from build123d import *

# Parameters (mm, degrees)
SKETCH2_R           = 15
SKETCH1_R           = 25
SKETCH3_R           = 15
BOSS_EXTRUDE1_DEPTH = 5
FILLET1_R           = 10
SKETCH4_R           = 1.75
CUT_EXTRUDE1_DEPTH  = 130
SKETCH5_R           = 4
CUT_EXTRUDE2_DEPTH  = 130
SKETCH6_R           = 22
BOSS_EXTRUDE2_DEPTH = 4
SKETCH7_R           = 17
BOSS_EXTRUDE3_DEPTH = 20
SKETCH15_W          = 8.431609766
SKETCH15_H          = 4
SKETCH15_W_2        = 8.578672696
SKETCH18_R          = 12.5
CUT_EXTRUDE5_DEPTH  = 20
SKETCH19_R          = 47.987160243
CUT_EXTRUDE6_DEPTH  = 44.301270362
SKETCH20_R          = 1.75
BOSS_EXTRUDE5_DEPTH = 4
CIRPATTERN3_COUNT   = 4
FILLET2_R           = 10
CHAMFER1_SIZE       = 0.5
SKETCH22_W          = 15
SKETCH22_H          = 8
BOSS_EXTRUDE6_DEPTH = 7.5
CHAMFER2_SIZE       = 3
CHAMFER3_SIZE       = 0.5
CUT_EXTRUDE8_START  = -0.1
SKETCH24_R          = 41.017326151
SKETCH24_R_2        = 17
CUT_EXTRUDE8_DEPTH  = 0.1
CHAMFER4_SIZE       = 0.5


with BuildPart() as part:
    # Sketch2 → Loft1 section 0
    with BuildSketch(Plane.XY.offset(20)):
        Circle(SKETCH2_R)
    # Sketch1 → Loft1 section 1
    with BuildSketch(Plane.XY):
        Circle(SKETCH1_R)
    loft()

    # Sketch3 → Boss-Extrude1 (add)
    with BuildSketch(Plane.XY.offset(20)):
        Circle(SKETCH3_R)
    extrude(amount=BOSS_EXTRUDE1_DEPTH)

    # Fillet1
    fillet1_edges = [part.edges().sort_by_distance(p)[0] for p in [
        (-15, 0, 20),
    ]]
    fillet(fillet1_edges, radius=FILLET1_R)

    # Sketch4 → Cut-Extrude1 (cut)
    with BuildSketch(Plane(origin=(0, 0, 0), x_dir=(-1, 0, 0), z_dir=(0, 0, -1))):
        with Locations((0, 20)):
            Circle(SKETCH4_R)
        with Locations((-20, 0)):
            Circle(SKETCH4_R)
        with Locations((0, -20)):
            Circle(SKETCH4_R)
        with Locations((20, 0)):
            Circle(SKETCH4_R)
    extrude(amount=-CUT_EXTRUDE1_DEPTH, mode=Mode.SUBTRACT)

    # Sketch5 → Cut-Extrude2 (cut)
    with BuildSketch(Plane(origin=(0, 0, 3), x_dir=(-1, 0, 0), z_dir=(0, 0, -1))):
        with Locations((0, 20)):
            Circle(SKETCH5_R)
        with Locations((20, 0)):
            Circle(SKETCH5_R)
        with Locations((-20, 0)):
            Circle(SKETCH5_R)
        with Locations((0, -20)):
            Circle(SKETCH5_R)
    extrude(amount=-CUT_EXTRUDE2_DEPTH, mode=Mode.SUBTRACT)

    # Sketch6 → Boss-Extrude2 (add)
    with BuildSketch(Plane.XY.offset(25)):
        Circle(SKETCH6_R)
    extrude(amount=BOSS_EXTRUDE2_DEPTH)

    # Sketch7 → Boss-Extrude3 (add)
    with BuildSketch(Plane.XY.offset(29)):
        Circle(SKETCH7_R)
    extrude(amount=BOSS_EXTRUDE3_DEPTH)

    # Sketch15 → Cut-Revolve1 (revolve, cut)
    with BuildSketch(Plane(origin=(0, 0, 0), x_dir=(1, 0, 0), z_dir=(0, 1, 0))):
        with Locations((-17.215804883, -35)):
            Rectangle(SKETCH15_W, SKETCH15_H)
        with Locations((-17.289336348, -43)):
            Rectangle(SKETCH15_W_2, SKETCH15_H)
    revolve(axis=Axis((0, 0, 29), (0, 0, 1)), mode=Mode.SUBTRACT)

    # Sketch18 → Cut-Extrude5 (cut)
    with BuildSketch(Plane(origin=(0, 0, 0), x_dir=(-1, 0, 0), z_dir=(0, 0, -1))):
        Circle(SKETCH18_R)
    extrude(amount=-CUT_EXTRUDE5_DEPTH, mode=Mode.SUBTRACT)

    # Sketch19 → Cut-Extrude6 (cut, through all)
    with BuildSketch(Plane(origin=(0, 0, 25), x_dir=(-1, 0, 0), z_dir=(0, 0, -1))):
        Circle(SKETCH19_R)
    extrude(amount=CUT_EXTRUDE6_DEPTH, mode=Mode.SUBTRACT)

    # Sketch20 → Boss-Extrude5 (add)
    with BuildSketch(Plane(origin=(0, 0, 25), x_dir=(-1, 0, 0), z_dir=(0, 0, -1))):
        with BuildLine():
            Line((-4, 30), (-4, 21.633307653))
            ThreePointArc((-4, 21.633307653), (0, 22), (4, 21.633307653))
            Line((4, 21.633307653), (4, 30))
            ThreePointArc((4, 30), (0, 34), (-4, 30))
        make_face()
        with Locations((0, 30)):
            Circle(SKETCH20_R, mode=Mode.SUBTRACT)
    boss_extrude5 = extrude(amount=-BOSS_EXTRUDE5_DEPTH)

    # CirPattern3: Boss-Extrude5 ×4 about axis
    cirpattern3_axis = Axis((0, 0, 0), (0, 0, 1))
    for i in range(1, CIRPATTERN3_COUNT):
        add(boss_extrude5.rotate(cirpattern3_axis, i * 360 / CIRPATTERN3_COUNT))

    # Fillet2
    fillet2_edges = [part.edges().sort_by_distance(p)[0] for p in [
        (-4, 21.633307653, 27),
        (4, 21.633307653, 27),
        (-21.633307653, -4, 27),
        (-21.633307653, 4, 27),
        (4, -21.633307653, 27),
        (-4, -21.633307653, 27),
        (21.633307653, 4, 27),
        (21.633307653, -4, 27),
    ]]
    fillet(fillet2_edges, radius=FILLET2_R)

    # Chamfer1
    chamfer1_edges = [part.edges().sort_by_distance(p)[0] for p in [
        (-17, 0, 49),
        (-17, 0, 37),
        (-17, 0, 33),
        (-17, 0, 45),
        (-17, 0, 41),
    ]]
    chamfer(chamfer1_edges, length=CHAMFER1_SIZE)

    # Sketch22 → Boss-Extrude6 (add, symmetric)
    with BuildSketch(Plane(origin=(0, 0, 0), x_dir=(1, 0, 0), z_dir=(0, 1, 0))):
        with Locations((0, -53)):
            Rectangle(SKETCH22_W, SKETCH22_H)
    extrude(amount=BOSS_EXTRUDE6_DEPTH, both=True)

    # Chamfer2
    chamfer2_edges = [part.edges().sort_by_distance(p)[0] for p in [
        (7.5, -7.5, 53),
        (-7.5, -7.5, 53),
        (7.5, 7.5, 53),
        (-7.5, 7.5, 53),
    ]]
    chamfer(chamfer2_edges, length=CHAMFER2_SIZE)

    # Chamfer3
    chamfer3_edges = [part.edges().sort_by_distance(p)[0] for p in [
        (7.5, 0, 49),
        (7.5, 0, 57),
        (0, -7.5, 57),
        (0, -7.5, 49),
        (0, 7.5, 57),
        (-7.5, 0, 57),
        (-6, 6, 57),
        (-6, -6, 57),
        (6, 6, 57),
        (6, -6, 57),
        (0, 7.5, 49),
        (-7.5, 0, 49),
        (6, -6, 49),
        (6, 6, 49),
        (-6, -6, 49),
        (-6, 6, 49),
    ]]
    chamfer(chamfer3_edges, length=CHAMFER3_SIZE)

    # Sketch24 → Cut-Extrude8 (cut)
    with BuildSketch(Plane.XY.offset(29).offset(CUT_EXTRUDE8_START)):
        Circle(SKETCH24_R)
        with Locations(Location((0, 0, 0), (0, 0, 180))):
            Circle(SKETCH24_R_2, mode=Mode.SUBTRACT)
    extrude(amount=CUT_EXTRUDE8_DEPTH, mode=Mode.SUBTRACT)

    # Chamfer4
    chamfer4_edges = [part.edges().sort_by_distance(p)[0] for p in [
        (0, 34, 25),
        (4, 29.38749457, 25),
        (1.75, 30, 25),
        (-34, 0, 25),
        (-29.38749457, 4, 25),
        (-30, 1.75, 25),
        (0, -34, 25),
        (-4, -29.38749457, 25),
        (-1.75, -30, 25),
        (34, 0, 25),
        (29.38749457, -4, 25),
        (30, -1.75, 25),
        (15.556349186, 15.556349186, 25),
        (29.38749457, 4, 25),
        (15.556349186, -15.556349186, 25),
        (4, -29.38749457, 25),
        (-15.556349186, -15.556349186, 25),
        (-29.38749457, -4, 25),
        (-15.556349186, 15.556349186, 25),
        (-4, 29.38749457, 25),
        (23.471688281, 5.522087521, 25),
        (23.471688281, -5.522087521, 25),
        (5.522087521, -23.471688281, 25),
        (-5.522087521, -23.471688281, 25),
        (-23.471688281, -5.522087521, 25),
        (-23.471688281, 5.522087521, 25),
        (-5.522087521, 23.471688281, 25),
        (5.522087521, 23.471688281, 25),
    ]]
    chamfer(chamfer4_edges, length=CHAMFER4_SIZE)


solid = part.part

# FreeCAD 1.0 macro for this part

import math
import FreeCAD as App
import Part
import Sketcher
from FreeCAD import Vector


def edges_at(feature, points):
    """Names of the edges that pass closest to the given points."""
    edges = feature.Shape.Edges
    near = lambda p: min(range(len(edges)), key=lambda i: edges[i].distToShape(Part.Vertex(*p))[0])
    return sorted({f"Edge{near(p) + 1}" for p in points})

doc = App.newDocument("Part")
body = doc.addObject("PartDesign::Body", "Body")

# Sketch on XY plane
sketch1 = body.newObject("Sketcher::SketchObject", "Sketch")
sketch1.AttachmentSupport = (doc.getObject("XY_Plane"), [""])
sketch1.MapMode = "FlatFace"
sketch1.AttachmentOffset = App.Placement(Vector(0, 0, 20), App.Rotation())
sketch1.addGeometry(Part.Circle(Vector(0, 0, 0), Vector(0, 0, 1), 15), False)
sketch1.addConstraint(Sketcher.Constraint("Coincident", 0, 3, -1, 1))
sketch1.addConstraint(Sketcher.Constraint("Diameter", 0, 30.0))

# Sketch on XY plane
sketch2 = body.newObject("Sketcher::SketchObject", "Sketch001")
sketch2.AttachmentSupport = (doc.getObject("XY_Plane"), [""])
sketch2.MapMode = "FlatFace"
sketch2.addGeometry(Part.Circle(Vector(0, 0, 0), Vector(0, 0, 1), 25), False)
sketch2.addConstraint(Sketcher.Constraint("Coincident", 0, 3, -1, 1))
sketch2.addConstraint(Sketcher.Constraint("Diameter", 0, 50.0))

additiveloft = body.newObject("PartDesign::AdditiveLoft", "AdditiveLoft")
additiveloft.Profile = sketch1
additiveloft.Sections = [sketch2]

# Sketch on XY plane
sketch3 = body.newObject("Sketcher::SketchObject", "Sketch002")
sketch3.AttachmentSupport = (doc.getObject("XY_Plane"), [""])
sketch3.MapMode = "FlatFace"
sketch3.AttachmentOffset = App.Placement(Vector(0, 0, 20), App.Rotation())
sketch3.addGeometry(Part.Circle(Vector(0, 0, 0), Vector(0, 0, 1), 15), False)
sketch3.addConstraint(Sketcher.Constraint("Coincident", 0, 3, -1, 1))
sketch3.addConstraint(Sketcher.Constraint("Diameter", 0, 30.0))
pad1 = body.newObject("PartDesign::Pad", "Pad")
pad1.Profile = sketch3
pad1.Length = 5
doc.recompute()

fillet = body.newObject("PartDesign::Fillet", "Fillet")
fillet.Base = (pad1, edges_at(pad1, [(-15, 0, 20)]))
fillet.Radius = 10

# Sketch on XY plane
sketch4 = body.newObject("Sketcher::SketchObject", "Sketch003")
sketch4.AttachmentSupport = (doc.getObject("XY_Plane"), [""])
sketch4.MapMode = "FlatFace"
sketch4.addGeometry(Part.Circle(Vector(0, 20, 0), Vector(0, 0, 1), 1.8), False)
sketch4.addGeometry(Part.Circle(Vector(20, 0, 0), Vector(0, 0, 1), 1.8), False)
sketch4.addGeometry(Part.Circle(Vector(0, -20, 0), Vector(0, 0, 1), 1.8), False)
sketch4.addGeometry(Part.Circle(Vector(-20, 0, 0), Vector(0, 0, 1), 1.8), False)
sketch4.addConstraint(Sketcher.Constraint("Equal", 0, 1))
sketch4.addConstraint(Sketcher.Constraint("Equal", 1, 2))
sketch4.addConstraint(Sketcher.Constraint("Equal", 2, 3))
sketch4.addConstraint(Sketcher.Constraint("Symmetric", 0, 3, 2, 3, -1, 1))
sketch4.addConstraint(Sketcher.Constraint("Symmetric", 1, 3, 3, 3, -1, 1))
sketch4.addConstraint(Sketcher.Constraint("PointOnObject", 0, 3, -2))
sketch4.addConstraint(Sketcher.Constraint("PointOnObject", 1, 3, -1))
sketch4.addConstraint(Sketcher.Constraint("Diameter", 0, 3.5))
sketch4.addConstraint(Sketcher.Constraint("DistanceY", -1, 1, 0, 3, 20.0))
sketch4.addConstraint(Sketcher.Constraint("DistanceX", -1, 1, 1, 3, 20.0))
pocket1 = body.newObject("PartDesign::Pocket", "Pocket")
pocket1.Profile = sketch4
pocket1.Length = 130
pocket1.Reversed = True

# Sketch on XY plane
sketch5 = body.newObject("Sketcher::SketchObject", "Sketch004")
sketch5.AttachmentSupport = (doc.getObject("XY_Plane"), [""])
sketch5.MapMode = "FlatFace"
sketch5.AttachmentOffset = App.Placement(Vector(0, 0, 3), App.Rotation())
sketch5.addGeometry(Part.Circle(Vector(0, 20, 0), Vector(0, 0, 1), 4), False)
sketch5.addGeometry(Part.Circle(Vector(-20, 0, 0), Vector(0, 0, 1), 4), False)
sketch5.addGeometry(Part.Circle(Vector(20, 0, 0), Vector(0, 0, 1), 4), False)
sketch5.addGeometry(Part.Circle(Vector(0, -20, 0), Vector(0, 0, 1), 4), False)
sketch5.addConstraint(Sketcher.Constraint("Equal", 0, 1))
sketch5.addConstraint(Sketcher.Constraint("Equal", 1, 2))
sketch5.addConstraint(Sketcher.Constraint("Equal", 2, 3))
sketch5.addConstraint(Sketcher.Constraint("Symmetric", 1, 3, 2, 3, -1, 1))
sketch5.addConstraint(Sketcher.Constraint("Symmetric", 0, 3, 3, 3, -1, 1))
sketch5.addConstraint(Sketcher.Constraint("PointOnObject", 0, 3, -2))
sketch5.addConstraint(Sketcher.Constraint("PointOnObject", 1, 3, -1))
sketch5.addConstraint(Sketcher.Constraint("Diameter", 0, 8.0))
sketch5.addConstraint(Sketcher.Constraint("DistanceY", -1, 1, 0, 3, 20.0))
sketch5.addConstraint(Sketcher.Constraint("DistanceX", 1, 3, -1, 1, 20.0))
pocket2 = body.newObject("PartDesign::Pocket", "Pocket001")
pocket2.Profile = sketch5
pocket2.Length = 130
pocket2.Reversed = True

# Sketch on XY plane
sketch6 = body.newObject("Sketcher::SketchObject", "Sketch005")
sketch6.AttachmentSupport = (doc.getObject("XY_Plane"), [""])
sketch6.MapMode = "FlatFace"
sketch6.AttachmentOffset = App.Placement(Vector(0, 0, 25), App.Rotation())
sketch6.addGeometry(Part.Circle(Vector(0, 0, 0), Vector(0, 0, 1), 22), False)
sketch6.addConstraint(Sketcher.Constraint("Coincident", 0, 3, -1, 1))
sketch6.addConstraint(Sketcher.Constraint("Diameter", 0, 44.0))
pad2 = body.newObject("PartDesign::Pad", "Pad001")
pad2.Profile = sketch6
pad2.Length = 4

# Sketch on XY plane
sketch7 = body.newObject("Sketcher::SketchObject", "Sketch006")
sketch7.AttachmentSupport = (doc.getObject("XY_Plane"), [""])
sketch7.MapMode = "FlatFace"
sketch7.AttachmentOffset = App.Placement(Vector(0, 0, 29), App.Rotation())
sketch7.addGeometry(Part.Circle(Vector(0, 0, 0), Vector(0, 0, 1), 17), False)
sketch7.addConstraint(Sketcher.Constraint("Coincident", 0, 3, -1, 1))
sketch7.addConstraint(Sketcher.Constraint("Diameter", 0, 34.0))
pad3 = body.newObject("PartDesign::Pad", "Pad002")
pad3.Profile = sketch7
pad3.Length = 20

# Sketch on XZ plane
sketch8 = body.newObject("Sketcher::SketchObject", "Sketch007")
sketch8.AttachmentSupport = (doc.getObject("XZ_Plane"), [""])
sketch8.MapMode = "FlatFace"
sketch8.addGeometry(Part.LineSegment(Vector(-21.4, 33, 0), Vector(-21.4, 37, 0)), False)
sketch8.addGeometry(Part.LineSegment(Vector(-21.4, 37, 0), Vector(-13, 37, 0)), False)
sketch8.addGeometry(Part.LineSegment(Vector(-13, 37, 0), Vector(-13, 33, 0)), False)
sketch8.addGeometry(Part.LineSegment(Vector(-13, 33, 0), Vector(-21.4, 33, 0)), False)
sketch8.addGeometry(Part.LineSegment(Vector(-21.6, 41, 0), Vector(-21.6, 45, 0)), False)
sketch8.addGeometry(Part.LineSegment(Vector(-21.6, 45, 0), Vector(-13, 45, 0)), False)
sketch8.addGeometry(Part.LineSegment(Vector(-13, 45, 0), Vector(-13, 41, 0)), False)
sketch8.addGeometry(Part.LineSegment(Vector(-13, 41, 0), Vector(-21.6, 41, 0)), False)
sketch8.addConstraint(Sketcher.Constraint("Coincident", 0, 2, 1, 1))
sketch8.addConstraint(Sketcher.Constraint("Coincident", 1, 2, 2, 1))
sketch8.addConstraint(Sketcher.Constraint("Coincident", 2, 2, 3, 1))
sketch8.addConstraint(Sketcher.Constraint("Coincident", 3, 2, 0, 1))
sketch8.addConstraint(Sketcher.Constraint("Coincident", 4, 2, 5, 1))
sketch8.addConstraint(Sketcher.Constraint("Coincident", 5, 2, 6, 1))
sketch8.addConstraint(Sketcher.Constraint("Coincident", 6, 2, 7, 1))
sketch8.addConstraint(Sketcher.Constraint("Coincident", 7, 2, 4, 1))
sketch8.addConstraint(Sketcher.Constraint("Vertical", 0))
sketch8.addConstraint(Sketcher.Constraint("Horizontal", 1))
sketch8.addConstraint(Sketcher.Constraint("Vertical", 2))
sketch8.addConstraint(Sketcher.Constraint("Horizontal", 3))
sketch8.addConstraint(Sketcher.Constraint("Vertical", 4))
sketch8.addConstraint(Sketcher.Constraint("Horizontal", 5))
sketch8.addConstraint(Sketcher.Constraint("Vertical", 6))
sketch8.addConstraint(Sketcher.Constraint("Horizontal", 7))
sketch8.addConstraint(Sketcher.Constraint("Vertical", 2, 2, 5, 2))
sketch8.addConstraint(Sketcher.Constraint("Equal", 2, 4))
sketch8.addConstraint(Sketcher.Constraint("DistanceY", 0, 1, 0, 2, 4.0))
sketch8.addConstraint(Sketcher.Constraint("DistanceY", -1, 1, 0, 2, 37.0))
sketch8.addConstraint(Sketcher.Constraint("DistanceX", 1, 2, -1, 1, 13.0))
sketch8.addConstraint(Sketcher.Constraint("DistanceY", -1, 1, 4, 2, 45.0))
sketch8.addConstraint(Sketcher.Constraint("DistanceX", 1, 1, 1, 2, 8.43161))
sketch8.addConstraint(Sketcher.Constraint("DistanceX", 5, 1, 5, 2, 8.578673))
groove = body.newObject("PartDesign::Groove", "Groove")
groove.Profile = sketch8
groove.ReferenceAxis = (sketch8, ["V_Axis"])
groove.Angle = 360

# Sketch on XY plane
sketch9 = body.newObject("Sketcher::SketchObject", "Sketch008")
sketch9.AttachmentSupport = (doc.getObject("XY_Plane"), [""])
sketch9.MapMode = "FlatFace"
sketch9.addGeometry(Part.Circle(Vector(0, 0, 0), Vector(0, 0, 1), 12), False)
sketch9.addConstraint(Sketcher.Constraint("Coincident", 0, 3, -1, 1))
sketch9.addConstraint(Sketcher.Constraint("Diameter", 0, 25.0))
pocket3 = body.newObject("PartDesign::Pocket", "Pocket002")
pocket3.Profile = sketch9
pocket3.Length = 20
pocket3.Reversed = True

# Sketch on XY plane
sketch10 = body.newObject("Sketcher::SketchObject", "Sketch009")
sketch10.AttachmentSupport = (doc.getObject("XY_Plane"), [""])
sketch10.MapMode = "FlatFace"
sketch10.AttachmentOffset = App.Placement(Vector(0, 0, 25), App.Rotation())
sketch10.addGeometry(Part.Circle(Vector(0, 0, 0), Vector(0, 0, 1), 48), False)
sketch10.addConstraint(Sketcher.Constraint("Coincident", 0, 3, -1, 1))
sketch10.addConstraint(Sketcher.Constraint("Diameter", 0, 95.97432))
pocket4 = body.newObject("PartDesign::Pocket", "Pocket003")
pocket4.Profile = sketch10
pocket4.Type = "ThroughAll"

# Sketch on XY plane
sketch11 = body.newObject("Sketcher::SketchObject", "Sketch010")
sketch11.AttachmentSupport = (doc.getObject("XY_Plane"), [""])
sketch11.MapMode = "FlatFace"
sketch11.AttachmentOffset = App.Placement(Vector(0, 0, 25), App.Rotation())
sketch11.addGeometry(Part.LineSegment(Vector(4, 30, 0), Vector(4, 21.6, 0)), False)
sketch11.addGeometry(Part.ArcOfCircle(Part.Circle(Vector(0, 0, 0), Vector(0, 0, 1), 22), math.radians(80), math.radians(100)), False)
sketch11.addGeometry(Part.LineSegment(Vector(-4, 21.6, 0), Vector(-4, 30, 0)), False)
sketch11.addGeometry(Part.ArcOfCircle(Part.Circle(Vector(0, 30, 0), Vector(0, 0, 1), 4), math.radians(0), math.radians(180)), False)
sketch11.addGeometry(Part.Circle(Vector(0, 30, 0), Vector(0, 0, 1), 1.8), False)
sketch11.addConstraint(Sketcher.Constraint("Coincident", 0, 2, 1, 1))
sketch11.addConstraint(Sketcher.Constraint("Coincident", 1, 2, 2, 1))
sketch11.addConstraint(Sketcher.Constraint("Tangent", 2, 2, 3, 2))
sketch11.addConstraint(Sketcher.Constraint("Tangent", 3, 1, 0, 1))
sketch11.addConstraint(Sketcher.Constraint("Vertical", 0))
sketch11.addConstraint(Sketcher.Constraint("Vertical", 2))
sketch11.addConstraint(Sketcher.Constraint("Coincident", 1, 3, -1, 1))
sketch11.addConstraint(Sketcher.Constraint("Coincident", 4, 3, 3, 3))
sketch11.addConstraint(Sketcher.Constraint("PointOnObject", 3, 3, -2))
sketch11.addConstraint(Sketcher.Constraint("Radius", 1, 22.0))
sketch11.addConstraint(Sketcher.Constraint("Radius", 3, 4.0))
sketch11.addConstraint(Sketcher.Constraint("Diameter", 4, 3.5))
sketch11.addConstraint(Sketcher.Constraint("DistanceY", -1, 1, 3, 3, 30.0))
pad4 = body.newObject("PartDesign::Pad", "Pad003")
pad4.Profile = sketch11
pad4.Length = 4
doc.recompute()

polarpattern = body.newObject("PartDesign::PolarPattern", "PolarPattern")
polarpattern.Originals = [pad4]
polarpattern.Axis = (doc.getObject("Z_Axis"), [""])
polarpattern.Angle = 360
polarpattern.Occurrences = 4
body.Tip = polarpattern
doc.recompute()

fillet2 = body.newObject("PartDesign::Fillet", "Fillet001")
fillet2.Base = (polarpattern, edges_at(polarpattern, [
    (-4, 21.633, 27),
    (4, 21.633, 27),
    (-21.633, -4, 27),
    (-21.633, 4, 27),
    (4, -21.633, 27),
    (-4, -21.633, 27),
    (21.633, 4, 27),
    (21.633, -4, 27),
]))
fillet2.Radius = 10
doc.recompute()

chamfer = body.newObject("PartDesign::Chamfer", "Chamfer")
chamfer.Base = (fillet2, edges_at(fillet2, [
    (-17, 0, 49),
    (-17, 0, 37),
    (-17, 0, 33),
    (-17, 0, 45),
    (-17, 0, 41),
]))
chamfer.Size = 0.5

# Sketch on XZ plane
sketch12 = body.newObject("Sketcher::SketchObject", "Sketch011")
sketch12.AttachmentSupport = (doc.getObject("XZ_Plane"), [""])
sketch12.MapMode = "FlatFace"
sketch12.addGeometry(Part.LineSegment(Vector(-8, 49, 0), Vector(-8, 57, 0)), False)
sketch12.addGeometry(Part.LineSegment(Vector(-8, 57, 0), Vector(8, 57, 0)), False)
sketch12.addGeometry(Part.LineSegment(Vector(8, 57, 0), Vector(8, 49, 0)), False)
sketch12.addGeometry(Part.LineSegment(Vector(8, 49, 0), Vector(-8, 49, 0)), False)
sketch12.addConstraint(Sketcher.Constraint("Coincident", 0, 2, 1, 1))
sketch12.addConstraint(Sketcher.Constraint("Coincident", 1, 2, 2, 1))
sketch12.addConstraint(Sketcher.Constraint("Coincident", 2, 2, 3, 1))
sketch12.addConstraint(Sketcher.Constraint("Coincident", 3, 2, 0, 1))
sketch12.addConstraint(Sketcher.Constraint("Vertical", 0))
sketch12.addConstraint(Sketcher.Constraint("Horizontal", 1))
sketch12.addConstraint(Sketcher.Constraint("Vertical", 2))
sketch12.addConstraint(Sketcher.Constraint("Horizontal", 3))
sketch12.addConstraint(Sketcher.Constraint("DistanceX", 1, 1, 1, 2, 15.0))
sketch12.addConstraint(Sketcher.Constraint("DistanceY", 0, 1, 0, 2, 8.0))
sketch12.addConstraint(Sketcher.Constraint("DistanceY", -1, 1, 0, 2, 57.0))
sketch12.addConstraint(Sketcher.Constraint("DistanceX", 0, 2, -1, 1, 7.5))
pad5 = body.newObject("PartDesign::Pad", "Pad004")
pad5.Profile = sketch12
pad5.Length = 15
pad5.Midplane = True
doc.recompute()

chamfer2 = body.newObject("PartDesign::Chamfer", "Chamfer001")
chamfer2.Base = (pad5, edges_at(pad5, [
    (7.5, -7.5, 53),
    (-7.5, -7.5, 53),
    (7.5, 7.5, 53),
    (-7.5, 7.5, 53),
]))
chamfer2.Size = 3
doc.recompute()

chamfer3 = body.newObject("PartDesign::Chamfer", "Chamfer002")
chamfer3.Base = (chamfer2, edges_at(chamfer2, [
    (7.5, 0, 49),
    (7.5, 0, 57),
    (0, -7.5, 57),
    (0, -7.5, 49),
    (0, 7.5, 57),
    (-7.5, 0, 57),
    (-6, 6, 57),
    (-6, -6, 57),
    (6, 6, 57),
    (6, -6, 57),
    (0, 7.5, 49),
    (-7.5, 0, 49),
    (6, -6, 49),
    (6, 6, 49),
    (-6, -6, 49),
    (-6, 6, 49),
]))
chamfer3.Size = 0.5

# Sketch on XY plane
sketch13 = body.newObject("Sketcher::SketchObject", "Sketch012")
sketch13.AttachmentSupport = (doc.getObject("XY_Plane"), [""])
sketch13.MapMode = "FlatFace"
sketch13.AttachmentOffset = App.Placement(Vector(0, 0, 28.9), App.Rotation())
sketch13.addGeometry(Part.Circle(Vector(0, 0, 0), Vector(0, 0, 1), 41), False)
sketch13.addGeometry(Part.Circle(Vector(0, 0, 0), Vector(0, 0, 1), 17), False)
sketch13.addConstraint(Sketcher.Constraint("Coincident", 0, 3, -1, 1))
sketch13.addConstraint(Sketcher.Constraint("Coincident", 1, 3, -1, 1))
sketch13.addConstraint(Sketcher.Constraint("Diameter", 1, 34.0))
sketch13.addConstraint(Sketcher.Constraint("Diameter", 0, 82.034652))
pocket5 = body.newObject("PartDesign::Pocket", "Pocket004")
pocket5.Profile = sketch13
pocket5.Length = 0.1
pocket5.Reversed = True
doc.recompute()

chamfer4 = body.newObject("PartDesign::Chamfer", "Chamfer003")
chamfer4.Base = (pocket5, edges_at(pocket5, [
    (0, 34, 25),
    (4, 29.387, 25),
    (1.75, 30, 25),
    (-34, 0, 25),
    (-29.387, 4, 25),
    (-30, 1.75, 25),
    (0, -34, 25),
    (-4, -29.387, 25),
    (-1.75, -30, 25),
    (34, 0, 25),
    (29.387, -4, 25),
    (30, -1.75, 25),
    (15.556, 15.556, 25),
    (29.387, 4, 25),
    (15.556, -15.556, 25),
    (4, -29.387, 25),
    (-15.556, -15.556, 25),
    (-29.387, -4, 25),
    (-15.556, 15.556, 25),
    (-4, 29.387, 25),
    (23.472, 5.522, 25),
    (23.472, -5.522, 25),
    (5.522, -23.472, 25),
    (-5.522, -23.472, 25),
    (-23.472, -5.522, 25),
    (-23.472, 5.522, 25),
    (-5.522, 23.472, 25),
    (5.522, 23.472, 25),
]))
chamfer4.Size = 0.5

doc.recompute()
